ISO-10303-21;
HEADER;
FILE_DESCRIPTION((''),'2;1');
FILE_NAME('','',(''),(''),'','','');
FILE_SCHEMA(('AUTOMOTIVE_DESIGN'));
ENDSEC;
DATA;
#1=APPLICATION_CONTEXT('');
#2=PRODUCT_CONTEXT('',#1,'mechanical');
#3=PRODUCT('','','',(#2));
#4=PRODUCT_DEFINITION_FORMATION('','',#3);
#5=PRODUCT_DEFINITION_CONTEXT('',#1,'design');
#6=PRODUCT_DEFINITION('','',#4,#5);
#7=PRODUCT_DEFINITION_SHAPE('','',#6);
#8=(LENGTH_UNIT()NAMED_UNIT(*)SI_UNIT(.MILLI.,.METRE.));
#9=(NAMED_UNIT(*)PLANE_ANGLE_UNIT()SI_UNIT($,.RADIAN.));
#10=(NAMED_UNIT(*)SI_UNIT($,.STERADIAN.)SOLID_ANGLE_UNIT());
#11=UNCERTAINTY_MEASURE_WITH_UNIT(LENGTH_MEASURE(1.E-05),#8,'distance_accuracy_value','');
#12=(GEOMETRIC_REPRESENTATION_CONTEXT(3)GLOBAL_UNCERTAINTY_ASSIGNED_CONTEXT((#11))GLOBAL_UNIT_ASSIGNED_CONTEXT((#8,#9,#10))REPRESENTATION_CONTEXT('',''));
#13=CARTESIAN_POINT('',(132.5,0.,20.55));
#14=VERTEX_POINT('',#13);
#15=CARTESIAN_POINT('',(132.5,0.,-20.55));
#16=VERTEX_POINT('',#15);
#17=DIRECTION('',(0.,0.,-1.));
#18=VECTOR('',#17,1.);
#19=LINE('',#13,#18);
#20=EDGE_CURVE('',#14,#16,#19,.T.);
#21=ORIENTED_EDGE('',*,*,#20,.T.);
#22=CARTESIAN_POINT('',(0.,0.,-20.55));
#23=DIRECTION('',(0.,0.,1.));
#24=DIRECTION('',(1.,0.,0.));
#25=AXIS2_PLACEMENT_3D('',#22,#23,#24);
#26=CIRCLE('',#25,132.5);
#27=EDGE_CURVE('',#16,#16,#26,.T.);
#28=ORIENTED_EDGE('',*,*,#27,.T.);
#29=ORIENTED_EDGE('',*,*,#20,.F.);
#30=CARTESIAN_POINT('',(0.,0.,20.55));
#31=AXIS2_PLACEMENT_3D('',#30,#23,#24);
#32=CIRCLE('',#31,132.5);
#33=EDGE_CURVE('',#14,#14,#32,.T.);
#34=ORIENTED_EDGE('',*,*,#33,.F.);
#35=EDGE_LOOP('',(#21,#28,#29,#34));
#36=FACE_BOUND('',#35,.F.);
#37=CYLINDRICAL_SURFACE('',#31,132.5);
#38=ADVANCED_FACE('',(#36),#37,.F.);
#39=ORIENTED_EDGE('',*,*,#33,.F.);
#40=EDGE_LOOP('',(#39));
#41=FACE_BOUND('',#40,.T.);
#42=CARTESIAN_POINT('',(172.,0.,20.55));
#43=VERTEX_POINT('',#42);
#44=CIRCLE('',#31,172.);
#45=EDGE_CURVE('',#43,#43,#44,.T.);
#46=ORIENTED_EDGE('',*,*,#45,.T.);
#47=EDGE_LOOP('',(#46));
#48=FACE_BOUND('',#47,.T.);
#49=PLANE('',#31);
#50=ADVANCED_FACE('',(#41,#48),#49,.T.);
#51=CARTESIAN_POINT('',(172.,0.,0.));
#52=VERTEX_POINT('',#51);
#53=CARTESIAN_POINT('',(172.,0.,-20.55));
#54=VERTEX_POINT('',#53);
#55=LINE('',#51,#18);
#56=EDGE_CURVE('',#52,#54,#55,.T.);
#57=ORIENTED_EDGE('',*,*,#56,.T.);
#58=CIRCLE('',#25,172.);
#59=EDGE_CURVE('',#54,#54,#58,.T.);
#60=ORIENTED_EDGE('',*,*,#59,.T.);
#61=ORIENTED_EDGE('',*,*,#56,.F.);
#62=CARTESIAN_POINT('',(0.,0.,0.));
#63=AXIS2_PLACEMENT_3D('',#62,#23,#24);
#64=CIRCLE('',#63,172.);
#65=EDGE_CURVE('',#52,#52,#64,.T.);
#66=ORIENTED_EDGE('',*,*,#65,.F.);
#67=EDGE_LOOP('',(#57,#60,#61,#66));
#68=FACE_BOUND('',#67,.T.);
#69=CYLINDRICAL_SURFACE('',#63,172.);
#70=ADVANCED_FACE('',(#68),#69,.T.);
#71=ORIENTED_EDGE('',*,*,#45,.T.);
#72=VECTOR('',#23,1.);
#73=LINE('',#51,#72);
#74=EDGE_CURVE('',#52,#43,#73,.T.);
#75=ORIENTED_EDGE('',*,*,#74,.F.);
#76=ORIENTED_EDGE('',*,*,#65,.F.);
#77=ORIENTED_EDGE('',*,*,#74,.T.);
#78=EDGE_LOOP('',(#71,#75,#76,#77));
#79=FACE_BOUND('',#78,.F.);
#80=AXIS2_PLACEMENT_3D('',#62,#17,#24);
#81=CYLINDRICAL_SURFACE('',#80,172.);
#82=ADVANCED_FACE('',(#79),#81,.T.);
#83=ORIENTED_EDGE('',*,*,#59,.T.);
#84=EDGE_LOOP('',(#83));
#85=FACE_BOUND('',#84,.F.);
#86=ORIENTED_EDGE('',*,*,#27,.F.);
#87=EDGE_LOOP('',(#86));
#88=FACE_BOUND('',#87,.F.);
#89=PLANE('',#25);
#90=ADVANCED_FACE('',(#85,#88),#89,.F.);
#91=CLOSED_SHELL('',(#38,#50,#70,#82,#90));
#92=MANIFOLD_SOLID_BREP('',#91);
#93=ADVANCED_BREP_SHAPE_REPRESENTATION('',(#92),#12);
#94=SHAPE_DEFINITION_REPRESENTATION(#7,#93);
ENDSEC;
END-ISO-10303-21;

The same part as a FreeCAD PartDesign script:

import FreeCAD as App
import Part
import Sketcher
from FreeCAD import Vector

doc = App.newDocument("Part")
body = doc.addObject("PartDesign::Body", "Body")

# Sketch on XY plane
sketch1 = doc.addObject("Sketcher::SketchObject", "Sketch")
body.addObject(sketch1)
sketch1.AttachmentSupport = (doc.XY_Plane, [""])
sketch1.MapMode = "FlatFace"
sketch1.addGeometry(Part.Circle(Vector(0, 0, 0), Vector(0, 0, 1), 172), False)
sketch1.addConstraint(Sketcher.Constraint("Coincident", 0, 3, -1, 1))
sketch1.addConstraint(Sketcher.Constraint("Diameter", 0, 344.0))
pad1 = doc.addObject("PartDesign::Pad", "Pad")
body.addObject(pad1)
pad1.Profile = sketch1
pad1.Length = 41.1
pad1.Midplane = True

# Sketch on XY plane
sketch2 = doc.addObject("Sketcher::SketchObject", "Sketch001")
body.addObject(sketch2)
sketch2.AttachmentSupport = (doc.XY_Plane, [""])
sketch2.MapMode = "FlatFace"
sketch2.AttachmentOffset = App.Placement(Vector(0, 0, 20.55), App.Rotation())
sketch2.addGeometry(Part.Circle(Vector(0, 0, 0), Vector(0, 0, 1), 132), False)
sketch2.addConstraint(Sketcher.Constraint("Coincident", 0, 3, -1, 1))
sketch2.addConstraint(Sketcher.Constraint("Diameter", 0, 265.0))
pocket1 = doc.addObject("PartDesign::Pocket", "Pocket")
body.addObject(pocket1)
pocket1.Profile = sketch2
pocket1.Type = "ThroughAll"

doc.recompute()
